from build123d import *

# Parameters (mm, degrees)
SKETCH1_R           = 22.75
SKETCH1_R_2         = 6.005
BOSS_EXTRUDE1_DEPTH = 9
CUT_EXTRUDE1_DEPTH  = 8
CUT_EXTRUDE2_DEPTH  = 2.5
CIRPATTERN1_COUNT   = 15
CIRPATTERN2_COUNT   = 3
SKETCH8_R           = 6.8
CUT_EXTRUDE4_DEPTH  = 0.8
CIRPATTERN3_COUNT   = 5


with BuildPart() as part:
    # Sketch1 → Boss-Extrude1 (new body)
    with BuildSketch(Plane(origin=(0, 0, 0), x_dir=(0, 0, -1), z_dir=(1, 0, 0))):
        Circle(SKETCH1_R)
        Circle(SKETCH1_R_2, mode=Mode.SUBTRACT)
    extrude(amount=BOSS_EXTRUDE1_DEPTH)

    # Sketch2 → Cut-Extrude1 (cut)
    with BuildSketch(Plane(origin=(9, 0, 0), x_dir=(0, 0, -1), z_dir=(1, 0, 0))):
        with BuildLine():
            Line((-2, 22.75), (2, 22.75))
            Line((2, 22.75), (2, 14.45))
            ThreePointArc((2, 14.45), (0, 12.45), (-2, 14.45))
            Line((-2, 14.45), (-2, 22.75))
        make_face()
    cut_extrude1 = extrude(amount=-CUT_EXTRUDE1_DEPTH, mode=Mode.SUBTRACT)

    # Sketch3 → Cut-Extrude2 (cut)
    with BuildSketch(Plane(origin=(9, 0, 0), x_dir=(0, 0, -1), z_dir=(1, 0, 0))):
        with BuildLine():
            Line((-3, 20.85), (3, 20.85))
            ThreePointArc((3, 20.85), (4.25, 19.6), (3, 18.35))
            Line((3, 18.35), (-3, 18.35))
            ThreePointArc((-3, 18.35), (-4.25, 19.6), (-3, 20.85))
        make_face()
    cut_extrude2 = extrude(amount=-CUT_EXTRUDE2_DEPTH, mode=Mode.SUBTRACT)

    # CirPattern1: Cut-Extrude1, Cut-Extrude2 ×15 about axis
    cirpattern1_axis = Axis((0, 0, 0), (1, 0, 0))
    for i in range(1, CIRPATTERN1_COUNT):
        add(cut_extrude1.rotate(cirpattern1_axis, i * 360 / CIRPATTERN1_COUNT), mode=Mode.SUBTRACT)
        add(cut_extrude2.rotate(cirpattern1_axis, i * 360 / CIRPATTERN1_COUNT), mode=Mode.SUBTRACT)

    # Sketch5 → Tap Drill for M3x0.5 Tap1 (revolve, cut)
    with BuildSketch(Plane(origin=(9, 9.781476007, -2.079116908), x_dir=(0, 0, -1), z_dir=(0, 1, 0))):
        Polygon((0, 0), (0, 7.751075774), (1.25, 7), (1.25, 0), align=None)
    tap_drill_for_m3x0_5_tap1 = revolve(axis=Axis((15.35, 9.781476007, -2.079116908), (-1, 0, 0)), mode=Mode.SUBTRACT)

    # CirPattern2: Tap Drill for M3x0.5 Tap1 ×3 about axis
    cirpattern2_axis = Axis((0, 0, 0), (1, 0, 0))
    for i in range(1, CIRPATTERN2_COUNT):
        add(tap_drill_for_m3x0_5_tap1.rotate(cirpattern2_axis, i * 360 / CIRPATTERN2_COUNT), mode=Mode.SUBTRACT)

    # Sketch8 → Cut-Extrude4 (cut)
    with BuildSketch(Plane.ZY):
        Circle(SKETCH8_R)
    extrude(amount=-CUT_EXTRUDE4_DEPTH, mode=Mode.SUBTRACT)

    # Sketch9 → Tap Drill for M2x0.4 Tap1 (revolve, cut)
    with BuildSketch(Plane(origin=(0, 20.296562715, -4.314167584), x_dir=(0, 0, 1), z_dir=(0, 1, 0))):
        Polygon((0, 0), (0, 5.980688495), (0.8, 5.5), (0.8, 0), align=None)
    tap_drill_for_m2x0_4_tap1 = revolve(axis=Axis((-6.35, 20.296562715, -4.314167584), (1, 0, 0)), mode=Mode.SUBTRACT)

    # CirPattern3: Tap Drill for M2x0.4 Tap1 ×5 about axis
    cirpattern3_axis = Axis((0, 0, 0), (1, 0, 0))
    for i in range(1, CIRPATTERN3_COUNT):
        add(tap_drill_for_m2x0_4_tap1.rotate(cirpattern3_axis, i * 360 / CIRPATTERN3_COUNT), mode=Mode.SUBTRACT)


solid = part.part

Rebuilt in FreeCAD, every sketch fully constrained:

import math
import FreeCAD as App
import Part
import Sketcher
from FreeCAD import Vector
Q = App.Units.Quantity


def add_polygon(sketch, points):
    """Adds a closed chain of lines whose ends are joined by coincident constraints."""
    first, n = sketch.GeometryCount, len(points)
    for a, b in zip(points, points[1:] + points[:1]):
        sketch.addGeometry(Part.LineSegment(App.Vector(*a, 0), App.Vector(*b, 0)), False)
    for i in range(n):
        sketch.addConstraint(Sketcher.Constraint("Coincident", first + i, 2, first + (i + 1) % n, 1))

doc = App.newDocument("Part")
body = doc.addObject("PartDesign::Body", "Body")

sketch1 = body.newObject("Sketcher::SketchObject", "Sketch")
sketch1.AttachmentSupport = (doc.getObject("YZ_Plane"), [""])
sketch1.MapMode = "FlatFace"
sketch1.addGeometry(Part.Circle(Vector(0, 0, 0), Vector(0, 0, 1), 23), False)
sketch1.addGeometry(Part.Circle(Vector(0, 0, 0), Vector(0, 0, 1), 6), False)
sketch1.addConstraint(Sketcher.Constraint("Coincident", 0, 3, -1, 1))
sketch1.addConstraint(Sketcher.Constraint("Coincident", 1, 3, -1, 1))
sketch1.addConstraint(Sketcher.Constraint("Diameter", 0, Q("45.5 mm")))
sketch1.addConstraint(Sketcher.Constraint("Diameter", 1, Q("12.01 mm")))
pad1 = body.newObject("PartDesign::Pad", "Pad")
pad1.Profile = sketch1
pad1.Length = 9

sketch2 = body.newObject("Sketcher::SketchObject", "Sketch001")
sketch2.AttachmentSupport = (doc.getObject("YZ_Plane"), [""])
sketch2.MapMode = "FlatFace"
sketch2.AttachmentOffset = App.Placement(Vector(0, 0, 9), App.Rotation())
sketch2.addGeometry(Part.LineSegment(Vector(22.8, -2, 0), Vector(22.8, 2, 0)), False)
sketch2.addGeometry(Part.LineSegment(Vector(22.8, 2, 0), Vector(14.4, 2, 0)), False)
sketch2.addGeometry(Part.ArcOfCircle(Part.Circle(Vector(14.4, 0, 0), Vector(0, 0, 1), 2), math.radians(90), math.radians(270)), False)
sketch2.addGeometry(Part.LineSegment(Vector(14.4, -2, 0), Vector(22.8, -2, 0)), False)
sketch2.addConstraint(Sketcher.Constraint("Coincident", 0, 2, 1, 1))
sketch2.addConstraint(Sketcher.Constraint("Tangent", 1, 2, 2, 1))
sketch2.addConstraint(Sketcher.Constraint("Tangent", 2, 2, 3, 1))
sketch2.addConstraint(Sketcher.Constraint("Coincident", 3, 2, 0, 1))
sketch2.addConstraint(Sketcher.Constraint("Vertical", 0))
sketch2.addConstraint(Sketcher.Constraint("Horizontal", 1))
sketch2.addConstraint(Sketcher.Constraint("Horizontal", 3))
sketch2.addConstraint(Sketcher.Constraint("PointOnObject", 2, 3, -1))
sketch2.addConstraint(Sketcher.Constraint("Radius", 2, Q("2 mm")))
sketch2.addConstraint(Sketcher.Constraint("DistanceX", 1, 2, 1, 1, Q("8.3 mm")))
sketch2.addConstraint(Sketcher.Constraint("DistanceX", -1, 1, 2, 3, Q("14.45 mm")))
pocket1 = body.newObject("PartDesign::Pocket", "Pocket")
pocket1.Profile = sketch2
pocket1.Length = 8

sketch3 = body.newObject("Sketcher::SketchObject", "Sketch002")
sketch3.AttachmentSupport = (doc.getObject("YZ_Plane"), [""])
sketch3.MapMode = "FlatFace"
sketch3.AttachmentOffset = App.Placement(Vector(0, 0, 9), App.Rotation())
sketch3.addGeometry(Part.LineSegment(Vector(20.9, -3, 0), Vector(20.9, 3, 0)), False)
sketch3.addGeometry(Part.ArcOfCircle(Part.Circle(Vector(19.6, 3, 0), Vector(0, 0, 1), 1.2), math.radians(0), math.radians(180)), False)
sketch3.addGeometry(Part.LineSegment(Vector(18.4, 3, 0), Vector(18.4, -3, 0)), False)
sketch3.addGeometry(Part.ArcOfCircle(Part.Circle(Vector(19.6, -3, 0), Vector(0, 0, 1), 1.2), math.radians(180), math.radians(360)), False)
sketch3.addConstraint(Sketcher.Constraint("Tangent", 0, 2, 1, 1))
sketch3.addConstraint(Sketcher.Constraint("Tangent", 1, 2, 2, 1))
sketch3.addConstraint(Sketcher.Constraint("Tangent", 2, 2, 3, 1))
sketch3.addConstraint(Sketcher.Constraint("Tangent", 3, 2, 0, 1))
sketch3.addConstraint(Sketcher.Constraint("Vertical", 0))
sketch3.addConstraint(Sketcher.Constraint("Vertical", 2))
sketch3.addConstraint(Sketcher.Constraint("DistanceY", 0, 1, 0, 2, Q("6 mm")))
sketch3.addConstraint(Sketcher.Constraint("Radius", 1, Q("1.25 mm")))
sketch3.addConstraint(Sketcher.Constraint("DistanceY", -1, 1, 1, 3, Q("3 mm")))
sketch3.addConstraint(Sketcher.Constraint("DistanceX", -1, 1, 1, 3, Q("19.6 mm")))
pocket2 = body.newObject("PartDesign::Pocket", "Pocket001")
pocket2.Profile = sketch3
pocket2.Length = 2.5
doc.recompute()

polarpattern = body.newObject("PartDesign::PolarPattern", "PolarPattern")
polarpattern.Originals = [pocket1, pocket2]
polarpattern.Axis = (doc.getObject("X_Axis"), [""])
polarpattern.Angle = 360
polarpattern.Occurrences = 15
body.Tip = polarpattern

sketch4 = body.newObject("Sketcher::SketchObject", "Sketch003")
sketch4.AttachmentSupport = (doc.getObject("XZ_Plane"), [""])
sketch4.MapMode = "FlatFace"
sketch4.AttachmentOffset = App.Placement(Vector(0, 0, -9.781476), App.Rotation())
add_polygon(sketch4, [(1.2, -2.1), (9, -2.1), (9, -3.3), (2, -3.3)])
sketch4.addGeometry(Part.LineSegment(Vector(9, -2.1, 0), Vector(1.2, -2.1, 0)), True)
sketch4.addConstraint(Sketcher.Constraint("Horizontal", 0))
sketch4.addConstraint(Sketcher.Constraint("Vertical", 1))
sketch4.addConstraint(Sketcher.Constraint("Horizontal", 2))
sketch4.addConstraint(Sketcher.Constraint("Horizontal", 4))
sketch4.addConstraint(Sketcher.Constraint("Coincident", 4, 1, 0, 2))
sketch4.addConstraint(Sketcher.Constraint("Equal", 0, 4))
sketch4.addConstraint(Sketcher.Constraint("DistanceX", 2, 2, 2, 1, Q("7 mm")))
sketch4.addConstraint(Sketcher.Constraint("Angle", 3, Q("121 deg")))
sketch4.addConstraint(Sketcher.Constraint("DistanceX", -1, 1, 0, 2, Q("9 mm")))
sketch4.addConstraint(Sketcher.Constraint("DistanceY", 1, 2, 1, 1, Q("1.25 mm")))
sketch4.addConstraint(Sketcher.Constraint("DistanceY", 0, 2, -1, 1, Q("2.079117 mm")))
groove = body.newObject("PartDesign::Groove", "Groove")
groove.Profile = sketch4
groove.ReferenceAxis = (sketch4, ["Axis0"])
groove.Angle = 360
doc.recompute()

polarpattern2 = body.newObject("PartDesign::PolarPattern", "PolarPattern001")
polarpattern2.Originals = [groove]
polarpattern2.Axis = (doc.getObject("X_Axis"), [""])
polarpattern2.Angle = 360
polarpattern2.Occurrences = 3
body.Tip = polarpattern2

sketch5 = body.newObject("Sketcher::SketchObject", "Sketch004")
sketch5.AttachmentSupport = (doc.getObject("YZ_Plane"), [""])
sketch5.MapMode = "FlatFace"
sketch5.addGeometry(Part.Circle(Vector(0, 0, 0), Vector(0, 0, 1), 7), False)
sketch5.addConstraint(Sketcher.Constraint("Coincident", 0, 3, -1, 1))
sketch5.addConstraint(Sketcher.Constraint("Diameter", 0, Q("13.6 mm")))
pocket3 = body.newObject("PartDesign::Pocket", "Pocket002")
pocket3.Profile = sketch5
pocket3.Length = 0.8
pocket3.Reversed = True

sketch6 = body.newObject("Sketcher::SketchObject", "Sketch005")
sketch6.AttachmentSupport = (doc.getObject("XZ_Plane"), [""])
sketch6.MapMode = "FlatFace"
sketch6.AttachmentOffset = App.Placement(Vector(0, 0, -20.296563), App.Rotation())
add_polygon(sketch6, [(6, -4.3), (0, -4.3), (0, -3.5), (5.5, -3.5)])
sketch6.addGeometry(Part.LineSegment(Vector(0, -4.3, 0), Vector(6, -4.3, 0)), True)
sketch6.addConstraint(Sketcher.Constraint("Horizontal", 0))
sketch6.addConstraint(Sketcher.Constraint("Vertical", 1))
sketch6.addConstraint(Sketcher.Constraint("Horizontal", 2))
sketch6.addConstraint(Sketcher.Constraint("Horizontal", 4))
sketch6.addConstraint(Sketcher.Constraint("Coincident", 4, 1, 0, 2))
sketch6.addConstraint(Sketcher.Constraint("PointOnObject", 0, 2, -2))
sketch6.addConstraint(Sketcher.Constraint("Equal", 0, 4))
sketch6.addConstraint(Sketcher.Constraint("Angle", 3, Q("-59 deg")))
sketch6.addConstraint(Sketcher.Constraint("DistanceX", 2, 1, 2, 2, Q("5.5 mm")))
sketch6.addConstraint(Sketcher.Constraint("DistanceY", 1, 1, 1, 2, Q("0.8 mm")))
sketch6.addConstraint(Sketcher.Constraint("DistanceY", 0, 2, -1, 1, Q("4.314168 mm")))
groove2 = body.newObject("PartDesign::Groove", "Groove001")
groove2.Profile = sketch6
groove2.ReferenceAxis = (sketch6, ["Axis0"])
groove2.Angle = 360
doc.recompute()

polarpattern3 = body.newObject("PartDesign::PolarPattern", "PolarPattern002")
polarpattern3.Originals = [groove2]
polarpattern3.Axis = (doc.getObject("X_Axis"), [""])
polarpattern3.Angle = 360
polarpattern3.Occurrences = 5
body.Tip = polarpattern3

doc.recompute()
